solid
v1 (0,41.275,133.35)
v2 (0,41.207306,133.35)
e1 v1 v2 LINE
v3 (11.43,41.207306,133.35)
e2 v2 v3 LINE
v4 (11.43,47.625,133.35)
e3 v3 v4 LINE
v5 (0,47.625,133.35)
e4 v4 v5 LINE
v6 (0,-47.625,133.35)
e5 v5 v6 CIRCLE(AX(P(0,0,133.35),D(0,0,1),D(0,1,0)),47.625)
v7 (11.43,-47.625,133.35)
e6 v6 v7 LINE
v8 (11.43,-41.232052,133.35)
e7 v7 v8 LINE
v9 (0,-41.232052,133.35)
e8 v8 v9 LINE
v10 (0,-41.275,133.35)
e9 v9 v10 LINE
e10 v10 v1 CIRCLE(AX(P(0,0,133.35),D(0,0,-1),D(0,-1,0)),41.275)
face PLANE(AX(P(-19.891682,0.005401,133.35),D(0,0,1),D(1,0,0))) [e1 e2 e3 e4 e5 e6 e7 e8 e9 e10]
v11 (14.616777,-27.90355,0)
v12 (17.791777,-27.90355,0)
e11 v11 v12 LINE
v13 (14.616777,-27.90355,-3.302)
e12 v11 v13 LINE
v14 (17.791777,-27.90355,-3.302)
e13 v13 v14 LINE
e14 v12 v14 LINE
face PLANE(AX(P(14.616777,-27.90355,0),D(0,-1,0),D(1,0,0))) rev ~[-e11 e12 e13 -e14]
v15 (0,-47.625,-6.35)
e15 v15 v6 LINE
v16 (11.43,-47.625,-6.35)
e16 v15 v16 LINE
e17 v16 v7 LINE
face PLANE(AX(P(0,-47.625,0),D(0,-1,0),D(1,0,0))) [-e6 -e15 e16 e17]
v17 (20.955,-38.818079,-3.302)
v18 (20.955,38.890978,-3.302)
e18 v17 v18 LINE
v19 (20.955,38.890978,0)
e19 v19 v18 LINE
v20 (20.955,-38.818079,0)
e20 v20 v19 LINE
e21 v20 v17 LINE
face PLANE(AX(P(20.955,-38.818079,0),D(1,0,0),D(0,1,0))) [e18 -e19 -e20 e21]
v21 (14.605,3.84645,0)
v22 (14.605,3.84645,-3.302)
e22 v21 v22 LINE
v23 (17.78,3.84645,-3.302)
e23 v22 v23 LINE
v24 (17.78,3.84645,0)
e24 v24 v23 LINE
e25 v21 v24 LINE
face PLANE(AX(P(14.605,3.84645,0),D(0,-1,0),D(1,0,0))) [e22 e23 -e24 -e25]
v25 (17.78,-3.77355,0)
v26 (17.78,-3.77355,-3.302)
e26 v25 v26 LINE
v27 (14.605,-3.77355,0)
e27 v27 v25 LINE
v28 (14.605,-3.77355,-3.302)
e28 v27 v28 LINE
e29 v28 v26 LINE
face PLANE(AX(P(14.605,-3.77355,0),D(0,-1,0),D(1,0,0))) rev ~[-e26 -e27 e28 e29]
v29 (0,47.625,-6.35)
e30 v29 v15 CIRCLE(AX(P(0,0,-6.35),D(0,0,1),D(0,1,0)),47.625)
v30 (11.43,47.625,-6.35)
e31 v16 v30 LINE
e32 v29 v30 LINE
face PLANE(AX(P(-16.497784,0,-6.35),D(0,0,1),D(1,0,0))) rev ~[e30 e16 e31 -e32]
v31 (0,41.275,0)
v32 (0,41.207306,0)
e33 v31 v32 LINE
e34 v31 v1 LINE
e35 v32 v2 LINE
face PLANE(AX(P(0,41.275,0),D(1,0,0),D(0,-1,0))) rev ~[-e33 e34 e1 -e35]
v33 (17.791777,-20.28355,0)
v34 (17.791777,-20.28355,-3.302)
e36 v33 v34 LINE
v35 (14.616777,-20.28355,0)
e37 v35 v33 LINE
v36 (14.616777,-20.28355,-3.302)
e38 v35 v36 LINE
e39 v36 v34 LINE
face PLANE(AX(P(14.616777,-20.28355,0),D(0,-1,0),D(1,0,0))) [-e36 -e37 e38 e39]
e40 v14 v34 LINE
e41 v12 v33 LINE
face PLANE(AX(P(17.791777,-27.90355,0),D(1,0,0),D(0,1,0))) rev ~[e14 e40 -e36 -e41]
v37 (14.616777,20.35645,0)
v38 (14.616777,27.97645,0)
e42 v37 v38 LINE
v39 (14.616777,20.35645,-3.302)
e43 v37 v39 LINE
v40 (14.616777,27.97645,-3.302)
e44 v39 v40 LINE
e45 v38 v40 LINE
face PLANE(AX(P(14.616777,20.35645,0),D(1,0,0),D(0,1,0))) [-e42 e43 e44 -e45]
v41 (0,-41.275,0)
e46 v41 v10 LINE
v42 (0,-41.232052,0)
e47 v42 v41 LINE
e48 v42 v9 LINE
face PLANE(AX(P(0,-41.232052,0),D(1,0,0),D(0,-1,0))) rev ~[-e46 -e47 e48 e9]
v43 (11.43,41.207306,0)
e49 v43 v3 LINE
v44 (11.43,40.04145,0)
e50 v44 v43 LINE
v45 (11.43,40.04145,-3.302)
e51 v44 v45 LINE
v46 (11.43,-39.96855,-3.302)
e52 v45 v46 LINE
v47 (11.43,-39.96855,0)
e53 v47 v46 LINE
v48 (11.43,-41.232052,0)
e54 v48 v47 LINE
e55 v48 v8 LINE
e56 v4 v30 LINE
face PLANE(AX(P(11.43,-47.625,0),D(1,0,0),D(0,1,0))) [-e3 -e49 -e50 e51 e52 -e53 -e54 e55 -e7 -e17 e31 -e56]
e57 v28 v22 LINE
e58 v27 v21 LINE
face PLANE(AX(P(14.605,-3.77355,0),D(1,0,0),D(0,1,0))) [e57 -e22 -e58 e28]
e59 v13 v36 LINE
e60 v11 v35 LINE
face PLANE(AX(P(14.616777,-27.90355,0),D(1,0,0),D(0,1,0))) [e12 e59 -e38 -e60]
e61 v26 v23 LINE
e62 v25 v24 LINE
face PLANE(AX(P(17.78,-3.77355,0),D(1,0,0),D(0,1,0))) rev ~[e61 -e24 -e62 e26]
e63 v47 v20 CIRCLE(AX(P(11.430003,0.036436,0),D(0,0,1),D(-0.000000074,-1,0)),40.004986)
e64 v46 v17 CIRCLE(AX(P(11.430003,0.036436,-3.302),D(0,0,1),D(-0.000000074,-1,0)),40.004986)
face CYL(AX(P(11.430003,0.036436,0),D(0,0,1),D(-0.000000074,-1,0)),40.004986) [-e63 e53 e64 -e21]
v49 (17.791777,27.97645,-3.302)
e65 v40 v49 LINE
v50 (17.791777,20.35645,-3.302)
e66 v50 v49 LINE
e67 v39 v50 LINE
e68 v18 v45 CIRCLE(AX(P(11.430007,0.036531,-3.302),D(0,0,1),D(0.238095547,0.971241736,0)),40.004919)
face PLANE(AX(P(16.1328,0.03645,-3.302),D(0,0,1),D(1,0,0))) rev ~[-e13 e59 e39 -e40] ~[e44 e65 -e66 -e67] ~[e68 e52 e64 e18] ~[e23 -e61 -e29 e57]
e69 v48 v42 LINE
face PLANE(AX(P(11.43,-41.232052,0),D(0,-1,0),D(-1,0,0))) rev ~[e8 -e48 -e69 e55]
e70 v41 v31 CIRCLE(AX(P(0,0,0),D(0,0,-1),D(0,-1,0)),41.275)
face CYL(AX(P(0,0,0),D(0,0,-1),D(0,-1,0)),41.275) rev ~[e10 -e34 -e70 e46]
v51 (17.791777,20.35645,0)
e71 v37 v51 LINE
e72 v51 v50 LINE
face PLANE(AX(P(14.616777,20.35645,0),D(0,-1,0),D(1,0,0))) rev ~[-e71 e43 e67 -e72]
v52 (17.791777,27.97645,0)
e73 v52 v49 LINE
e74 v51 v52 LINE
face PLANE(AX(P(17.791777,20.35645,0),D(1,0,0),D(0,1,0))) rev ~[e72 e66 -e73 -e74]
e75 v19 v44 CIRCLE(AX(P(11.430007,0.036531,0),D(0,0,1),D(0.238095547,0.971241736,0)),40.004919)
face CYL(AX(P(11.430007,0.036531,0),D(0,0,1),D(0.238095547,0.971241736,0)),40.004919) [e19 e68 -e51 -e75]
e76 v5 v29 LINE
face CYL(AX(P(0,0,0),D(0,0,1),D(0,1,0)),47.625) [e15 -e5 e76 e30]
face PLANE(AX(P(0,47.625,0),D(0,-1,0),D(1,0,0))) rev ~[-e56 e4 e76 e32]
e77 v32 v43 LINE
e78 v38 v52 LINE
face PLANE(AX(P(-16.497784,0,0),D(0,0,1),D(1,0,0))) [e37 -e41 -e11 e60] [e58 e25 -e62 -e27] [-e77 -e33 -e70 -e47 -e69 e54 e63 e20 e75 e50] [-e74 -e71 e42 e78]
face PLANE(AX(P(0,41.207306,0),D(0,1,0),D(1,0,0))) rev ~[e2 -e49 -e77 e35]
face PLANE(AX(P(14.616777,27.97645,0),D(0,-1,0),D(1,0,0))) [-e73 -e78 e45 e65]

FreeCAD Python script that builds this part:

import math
import FreeCAD as App
import Part
import Sketcher
Q = App.Units.Quantity

doc = App.newDocument("Part")
body = doc.addObject("PartDesign::Body", "Body")

sketch1 = body.newObject("Sketcher::SketchObject", "Sketch")
sketch1.AttachmentSupport = (doc.getObject("XY_Plane"), [""])
sketch1.MapMode = "FlatFace"
sketch1.addGeometry([
    Part.LineSegment(App.Vector(11.43, 47.625, 0), App.Vector(0, 47.625, 0)),
    Part.ArcOfCircle(Part.Circle(App.Vector(0, 0, 0), App.Vector(0, 0, 1), 47.625), math.radians(90), math.radians(270)),
    Part.LineSegment(App.Vector(0, -47.625, 0), App.Vector(11.43, -47.625, 0)),
    Part.LineSegment(App.Vector(11.43, -47.625, 0), App.Vector(11.43, -41.232, 0)),
    Part.LineSegment(App.Vector(11.43, -41.232, 0), App.Vector(0, -41.232, 0)),
    Part.LineSegment(App.Vector(0, -41.232, 0), App.Vector(0, -41.275, 0)),
    Part.ArcOfCircle(Part.Circle(App.Vector(0, 0, 0), App.Vector(0, 0, 1), 41.275), math.radians(90), math.radians(270)),
    Part.LineSegment(App.Vector(0, 41.275, 0), App.Vector(0, 41.207, 0)),
    Part.LineSegment(App.Vector(0, 41.207, 0), App.Vector(11.43, 41.207, 0)),
    Part.LineSegment(App.Vector(11.43, 41.207, 0), App.Vector(11.43, 47.625, 0)),
], False)
sketch1.addConstraint([
    Sketcher.Constraint("Tangent", 0, 2, 1, 1),
    Sketcher.Constraint("Tangent", 1, 2, 2, 1),
    Sketcher.Constraint("Coincident", 2, 2, 3, 1),
    Sketcher.Constraint("Coincident", 3, 2, 4, 1),
    Sketcher.Constraint("Coincident", 4, 2, 5, 1),
    Sketcher.Constraint("Coincident", 5, 2, 6, 2),
    Sketcher.Constraint("Coincident", 6, 1, 7, 1),
    Sketcher.Constraint("Coincident", 7, 2, 8, 1),
    Sketcher.Constraint("Coincident", 8, 2, 9, 1),
    Sketcher.Constraint("Coincident", 9, 2, 0, 1),
    Sketcher.Constraint("Horizontal", 0),
    Sketcher.Constraint("Horizontal", 2),
    Sketcher.Constraint("Vertical", 3),
    Sketcher.Constraint("Horizontal", 4),
    Sketcher.Constraint("Vertical", 5),
    Sketcher.Constraint("Vertical", 7),
    Sketcher.Constraint("Horizontal", 8),
    Sketcher.Constraint("Vertical", 9),
    Sketcher.Constraint("Coincident", 1, 3, -1, 1),
    Sketcher.Constraint("Coincident", 6, 3, -1, 1),
    Sketcher.Constraint("PointOnObject", 4, 2, -2),
    Sketcher.Constraint("PointOnObject", 6, 1, -2),
    Sketcher.Constraint("Vertical", 3, 2, 8, 2),
    Sketcher.Constraint("Radius", 1, Q("1.875 in")),
    Sketcher.Constraint("Radius", 6, Q("1.625 in")),
    Sketcher.Constraint("DistanceX", 0, 2, 0, 1, Q("0.45 in")),
    Sketcher.Constraint("DistanceY", 3, 1, 3, 2, 6.392948),
    Sketcher.Constraint("DistanceY", 7, 2, 7, 1, 0.067694),
])
pad1 = body.newObject("PartDesign::Pad", "Pad")
pad1.Profile = sketch1
pad1.Length = Q("5.25 in")

sketch2 = body.newObject("Sketcher::SketchObject", "Sketch001")
sketch2.AttachmentSupport = (doc.getObject("XY_Plane"), [""])
sketch2.MapMode = "FlatFace"
sketch2.addGeometry([
    Part.ArcOfCircle(Part.Circle(App.Vector(0, 0, 0), App.Vector(0, 0, 1), 48), math.radians(90), math.radians(270)),
    Part.LineSegment(App.Vector(0, -48, 0), App.Vector(11, -48, 0)),
    Part.LineSegment(App.Vector(11, -48, 0), App.Vector(11, 48, 0)),
    Part.LineSegment(App.Vector(11, 48, 0), App.Vector(0, 48, 0)),
], False)
sketch2.addConstraint([
    Sketcher.Constraint("Tangent", 0, 2, 1, 1),
    Sketcher.Constraint("Coincident", 1, 2, 2, 1),
    Sketcher.Constraint("Coincident", 2, 2, 3, 1),
    Sketcher.Constraint("Tangent", 3, 2, 0, 1),
    Sketcher.Constraint("Horizontal", 1),
    Sketcher.Constraint("Vertical", 2),
    Sketcher.Constraint("Horizontal", 3),
    Sketcher.Constraint("Coincident", 0, 3, -1, 1),
    Sketcher.Constraint("Radius", 0, Q("1.875 in")),
    Sketcher.Constraint("DistanceX", 1, 1, 1, 2, Q("0.45 in")),
])
pad2 = body.newObject("PartDesign::Pad", "Pad001")
pad2.Profile = sketch2
pad2.Length = Q("0.25 in")
pad2.Reversed = True

sketch3 = body.newObject("Sketcher::SketchObject", "Sketch002")
sketch3.AttachmentSupport = (doc.getObject("XY_Plane"), [""])
sketch3.MapMode = "FlatFace"
sketch3.addGeometry([
    Part.ArcOfCircle(Part.Circle(App.Vector(11.4, 0, 0), App.Vector(0, 0, 1), 40), math.radians(76.23), math.radians(90)),
    Part.LineSegment(App.Vector(11.4, 40, 0), App.Vector(11.4, -40, 0)),
    Part.ArcOfCircle(Part.Circle(App.Vector(11.4, 0, 0), App.Vector(0, 0, 1), 40), math.radians(-90), math.radians(-76.23)),
    Part.LineSegment(App.Vector(21, -38.8, 0), App.Vector(21, 38.9, 0)),
    Part.LineSegment(App.Vector(17.8, -27.9, 0), App.Vector(14.6, -27.9, 0)),
    Part.LineSegment(App.Vector(14.6, -27.9, 0), App.Vector(14.6, -20.3, 0)),
    Part.LineSegment(App.Vector(14.6, -20.3, 0), App.Vector(17.8, -20.3, 0)),
    Part.LineSegment(App.Vector(17.8, -20.3, 0), App.Vector(17.8, -27.9, 0)),
    Part.LineSegment(App.Vector(17.8, -3.8, 0), App.Vector(14.6, -3.8, 0)),
    Part.LineSegment(App.Vector(14.6, -3.8, 0), App.Vector(14.6, 3.8, 0)),
    Part.LineSegment(App.Vector(14.6, 3.8, 0), App.Vector(17.8, 3.8, 0)),
    Part.LineSegment(App.Vector(17.8, 3.8, 0), App.Vector(17.8, -3.8, 0)),
    Part.LineSegment(App.Vector(17.8, 20.4, 0), App.Vector(14.6, 20.4, 0)),
    Part.LineSegment(App.Vector(14.6, 20.4, 0), App.Vector(14.6, 28, 0)),
    Part.LineSegment(App.Vector(14.6, 28, 0), App.Vector(17.8, 28, 0)),
    Part.LineSegment(App.Vector(17.8, 28, 0), App.Vector(17.8, 20.4, 0)),
], False)
sketch3.addConstraint([
    Sketcher.Constraint("Coincident", 0, 2, 1, 1),
    Sketcher.Constraint("Coincident", 1, 2, 2, 1),
    Sketcher.Constraint("Coincident", 2, 2, 3, 1),
    Sketcher.Constraint("Coincident", 3, 2, 0, 1),
    Sketcher.Constraint("Coincident", 4, 2, 5, 1),
    Sketcher.Constraint("Coincident", 5, 2, 6, 1),
    Sketcher.Constraint("Coincident", 6, 2, 7, 1),
    Sketcher.Constraint("Coincident", 7, 2, 4, 1),
    Sketcher.Constraint("Coincident", 8, 2, 9, 1),
    Sketcher.Constraint("Coincident", 9, 2, 10, 1),
    Sketcher.Constraint("Coincident", 10, 2, 11, 1),
    Sketcher.Constraint("Coincident", 11, 2, 8, 1),
    Sketcher.Constraint("Coincident", 12, 2, 13, 1),
    Sketcher.Constraint("Coincident", 13, 2, 14, 1),
    Sketcher.Constraint("Coincident", 14, 2, 15, 1),
    Sketcher.Constraint("Coincident", 15, 2, 12, 1),
    Sketcher.Constraint("Vertical", 1),
    Sketcher.Constraint("Vertical", 3),
    Sketcher.Constraint("Horizontal", 4),
    Sketcher.Constraint("Vertical", 5),
    Sketcher.Constraint("Horizontal", 6),
    Sketcher.Constraint("Vertical", 7),
    Sketcher.Constraint("Horizontal", 8),
    Sketcher.Constraint("Vertical", 9),
    Sketcher.Constraint("Horizontal", 10),
    Sketcher.Constraint("Vertical", 11),
    Sketcher.Constraint("Horizontal", 12),
    Sketcher.Constraint("Vertical", 13),
    Sketcher.Constraint("Horizontal", 14),
    Sketcher.Constraint("Vertical", 15),
    Sketcher.Constraint("Vertical", 5, 2, 12, 2),
    Sketcher.Constraint("Vertical", 7, 2, 14, 2),
    Sketcher.Constraint("Equal", 6, 8),
    Sketcher.Constraint("Equal", 7, 9),
    Sketcher.Constraint("Equal", 11, 13),
    Sketcher.Constraint("DistanceY", 5, 1, 5, 2, Q("0.3 in")),
    Sketcher.Constraint("DistanceY", 1, 2, 1, 1, Q("3.15 in")),
    Sketcher.Constraint("DistanceX", -1, 1, 10, 2, Q("0.7 in")),
    Sketcher.Constraint("DistanceX", 4, 2, 4, 1, Q("0.125 in")),
    Sketcher.Constraint("DistanceX", -1, 1, 2, 3, Q("0.4500001 in")),
    Sketcher.Constraint("DistanceX", -1, 1, 0, 2, Q("0.45 in")),
    Sketcher.Constraint("DistanceY", 5, 2, 8, 2, Q("0.65 in")),
    Sketcher.Constraint("DistanceY", 9, 2, 12, 2, Q("0.65 in")),
    Sketcher.Constraint("DistanceX", -1, 1, 2, 2, Q("0.825 in")),
    Sketcher.Constraint("Radius", 0, 40.004919),
    Sketcher.Constraint("DistanceY", 1, 2, 4, 2, Q("0.475 in")),
    Sketcher.Constraint("Radius", 2, 40.004986),
    Sketcher.Constraint("DistanceY", 3, 1, 3, 2, 77.709057),
    Sketcher.Constraint("DistanceY", -1, 1, 0, 3, 0.036531),
    Sketcher.Constraint("DistanceX", 0, 3, 4, 2, 3.18677),
])
pad3 = body.newObject("PartDesign::Pad", "Pad002")
pad3.Profile = sketch3
pad3.Length = Q("0.13 in")
pad3.Reversed = True

doc.recompute()
